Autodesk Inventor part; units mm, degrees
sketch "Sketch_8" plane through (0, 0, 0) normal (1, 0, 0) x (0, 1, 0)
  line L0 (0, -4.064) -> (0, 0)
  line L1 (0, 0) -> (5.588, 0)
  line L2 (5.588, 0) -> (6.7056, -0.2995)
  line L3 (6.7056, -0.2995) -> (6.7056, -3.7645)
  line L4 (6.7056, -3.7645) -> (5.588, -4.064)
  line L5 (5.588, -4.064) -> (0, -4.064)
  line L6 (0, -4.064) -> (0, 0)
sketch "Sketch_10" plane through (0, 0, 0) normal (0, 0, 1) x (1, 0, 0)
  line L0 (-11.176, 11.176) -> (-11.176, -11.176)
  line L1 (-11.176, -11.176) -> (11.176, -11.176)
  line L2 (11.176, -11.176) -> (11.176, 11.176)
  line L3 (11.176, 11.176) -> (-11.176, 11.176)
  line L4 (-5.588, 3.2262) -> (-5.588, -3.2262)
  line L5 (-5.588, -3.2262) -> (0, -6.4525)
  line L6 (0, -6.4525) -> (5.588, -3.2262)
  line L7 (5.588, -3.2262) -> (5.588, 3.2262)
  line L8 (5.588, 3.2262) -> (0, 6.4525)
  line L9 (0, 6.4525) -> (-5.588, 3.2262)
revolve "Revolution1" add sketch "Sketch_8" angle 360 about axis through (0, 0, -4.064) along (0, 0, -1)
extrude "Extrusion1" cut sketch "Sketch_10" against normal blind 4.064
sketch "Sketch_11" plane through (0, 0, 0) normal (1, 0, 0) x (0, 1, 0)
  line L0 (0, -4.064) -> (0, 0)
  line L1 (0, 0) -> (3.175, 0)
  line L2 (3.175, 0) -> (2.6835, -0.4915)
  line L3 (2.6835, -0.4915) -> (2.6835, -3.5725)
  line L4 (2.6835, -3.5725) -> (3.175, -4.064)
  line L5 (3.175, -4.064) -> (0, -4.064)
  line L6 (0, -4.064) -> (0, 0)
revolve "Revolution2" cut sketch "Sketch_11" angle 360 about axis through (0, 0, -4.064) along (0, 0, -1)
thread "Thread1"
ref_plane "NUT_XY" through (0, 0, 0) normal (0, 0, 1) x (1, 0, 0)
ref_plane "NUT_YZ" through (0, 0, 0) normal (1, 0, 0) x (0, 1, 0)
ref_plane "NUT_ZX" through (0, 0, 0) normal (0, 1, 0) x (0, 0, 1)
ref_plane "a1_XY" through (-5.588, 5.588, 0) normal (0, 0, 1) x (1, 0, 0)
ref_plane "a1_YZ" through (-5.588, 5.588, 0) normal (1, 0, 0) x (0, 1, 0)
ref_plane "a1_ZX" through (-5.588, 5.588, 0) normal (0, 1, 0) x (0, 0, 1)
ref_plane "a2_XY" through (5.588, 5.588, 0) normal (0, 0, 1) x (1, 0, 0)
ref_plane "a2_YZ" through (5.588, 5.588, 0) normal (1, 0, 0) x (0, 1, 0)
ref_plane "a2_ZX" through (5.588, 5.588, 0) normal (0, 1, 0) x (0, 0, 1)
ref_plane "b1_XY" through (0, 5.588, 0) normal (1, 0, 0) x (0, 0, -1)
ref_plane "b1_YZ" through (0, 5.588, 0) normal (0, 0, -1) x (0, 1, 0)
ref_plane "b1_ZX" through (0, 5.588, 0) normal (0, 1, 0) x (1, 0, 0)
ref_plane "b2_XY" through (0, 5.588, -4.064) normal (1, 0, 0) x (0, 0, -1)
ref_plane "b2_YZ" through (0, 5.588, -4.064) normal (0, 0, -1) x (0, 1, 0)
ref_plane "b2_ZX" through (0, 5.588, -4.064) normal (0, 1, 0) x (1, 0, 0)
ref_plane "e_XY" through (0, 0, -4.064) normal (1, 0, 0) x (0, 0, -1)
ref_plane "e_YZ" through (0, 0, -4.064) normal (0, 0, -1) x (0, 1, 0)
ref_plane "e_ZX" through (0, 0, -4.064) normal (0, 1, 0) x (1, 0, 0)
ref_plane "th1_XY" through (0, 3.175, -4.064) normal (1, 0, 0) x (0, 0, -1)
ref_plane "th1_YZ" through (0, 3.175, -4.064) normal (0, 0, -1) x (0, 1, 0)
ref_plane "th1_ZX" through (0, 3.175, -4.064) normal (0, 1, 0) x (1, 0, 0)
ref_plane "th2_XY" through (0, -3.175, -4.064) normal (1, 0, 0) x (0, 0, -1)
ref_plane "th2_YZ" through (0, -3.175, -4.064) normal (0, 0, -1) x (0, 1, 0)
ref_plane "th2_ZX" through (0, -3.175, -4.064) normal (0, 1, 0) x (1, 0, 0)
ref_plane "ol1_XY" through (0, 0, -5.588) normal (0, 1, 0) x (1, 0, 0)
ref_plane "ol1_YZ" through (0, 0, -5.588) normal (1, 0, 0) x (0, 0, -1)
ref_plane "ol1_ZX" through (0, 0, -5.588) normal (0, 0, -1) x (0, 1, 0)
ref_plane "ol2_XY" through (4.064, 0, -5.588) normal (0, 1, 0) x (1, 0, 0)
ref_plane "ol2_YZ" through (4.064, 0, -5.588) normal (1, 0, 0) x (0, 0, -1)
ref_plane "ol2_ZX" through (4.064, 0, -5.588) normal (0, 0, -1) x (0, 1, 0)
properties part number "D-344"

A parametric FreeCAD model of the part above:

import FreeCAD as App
import Part
import Sketcher

V = App.Vector
Q = App.Units.Quantity


def add_polygon(sketch, points):
    """Adds a closed chain of lines whose ends are joined by coincident constraints."""
    first, n = sketch.GeometryCount, len(points)
    for a, b in zip(points, points[1:] + points[:1]):
        sketch.addGeometry(Part.LineSegment(App.Vector(*a, 0), App.Vector(*b, 0)), False)
    for i in range(n):
        sketch.addConstraint(Sketcher.Constraint("Coincident", first + i, 2, first + (i + 1) % n, 1))

doc = App.newDocument("Part")
params = doc.addObject("Spreadsheet::Sheet", "Params")
for row, (alias, value) in enumerate([
    ("sketch1_width", "0.22 in"),
    ("sketch1_height", "0.16 in"),
    ("revolution_angle", "360 deg"),
    ("sketch2_width", "0.88 in"),
    ("pocket1_length", "0.16 in"),
    ("sketch3_height", "0.16 in"),
    ("sketch3_width", "0.125 in"),
    ("groove_angle", "360 deg"),
], start=1):
    params.set(f"A{row}", alias)
    params.set(f"B{row}", "=" + value)
    params.setAlias(f"B{row}", alias)

body = doc.addObject("PartDesign::Body", "Body")

# Sketch on YZ plane
sketch1 = body.newObject("Sketcher::SketchObject", "Sketch")
sketch1.AttachmentSupport = (doc.getObject("YZ_Plane"), [""])
sketch1.MapMode = "FlatFace"
add_polygon(sketch1, [(0, 0), (0, -4.064), (5.588, -4.064), (6.7056, -3.7645), (6.7056, -0.2995), (5.588, 0)])  # lines 0-5
sketch1.addConstraint([
    Sketcher.Constraint("Vertical", 0),
    Sketcher.Constraint("Horizontal", 1),
    Sketcher.Constraint("Vertical", 3),
    Sketcher.Constraint("Horizontal", 5),
    Sketcher.Constraint("Coincident", 5, 2, -1, 1),
    Sketcher.Constraint("Vertical", 1, 2, 4, 2),
    Sketcher.Constraint("Equal", 2, 4),
    Sketcher.Constraint("DistanceX", 1, 1, 1, 2, Q("0.22 in")),
    Sketcher.Constraint("DistanceY", 0, 2, 0, 1, Q("0.16 in")),
    Sketcher.Constraint("DistanceX", -1, 1, 2, 2, Q("0.264 in")),
    Sketcher.Constraint("DistanceY", 3, 1, 3, 2, Q("3.465 mm")),
])
sketch1.setExpression("Constraints[13]", "Params.sketch1_width")
sketch1.setExpression("Constraints[14]", "Params.sketch1_height")
revolution = body.newObject("PartDesign::Revolution", "Revolution")
revolution.Profile = sketch1
revolution.ReferenceAxis = (sketch1, ["V_Axis"])
revolution.setExpression("Angle", "Params.revolution_angle")

# Sketch on XY plane
sketch2 = body.newObject("Sketcher::SketchObject", "Sketch001")
sketch2.AttachmentSupport = (doc.getObject("XY_Plane"), [""])
sketch2.MapMode = "FlatFace"
add_polygon(sketch2, [(11.176, 11.176), (-11.176, 11.176), (-11.176, -11.176), (11.176, -11.176)])  # lines 0-3
add_polygon(sketch2, [(-5.588, -3.2262), (-5.588, 3.2262), (0, 6.4525), (5.588, 3.2262), (5.588, -3.2262), (0, -6.4525)])  # lines 4-9
sketch2.addConstraint([
    Sketcher.Constraint("Horizontal", 0),
    Sketcher.Constraint("Vertical", 1),
    Sketcher.Constraint("Horizontal", 2),
    Sketcher.Constraint("Vertical", 3),
    Sketcher.Constraint("Vertical", 4),
    Sketcher.Constraint("Vertical", 7),
    Sketcher.Constraint("Symmetric", 0, 2, 2, 2, -1, 1),
    Sketcher.Constraint("Symmetric", 4, 2, 7, 2, -1, 1),
    Sketcher.Constraint("Symmetric", 5, 2, 8, 2, -1, 1),
    Sketcher.Constraint("PointOnObject", 5, 2, -2),
    Sketcher.Constraint("Parallel", 6, 9),
    Sketcher.Constraint("Horizontal", 4, 2, 6, 2),
    Sketcher.Constraint("Equal", 2, 1),
    Sketcher.Constraint("Angle", 5, Q("30.0005 deg")),
    Sketcher.Constraint("DistanceX", 0, 2, 0, 1, Q("0.88 in")),
    Sketcher.Constraint("DistanceX", 4, 2, -1, 1, Q("0.22 in")),
    Sketcher.Constraint("DistanceY", 4, 1, 4, 2, Q("6.4524 mm")),
])
sketch2.setExpression("Constraints[24]", "Params.sketch2_width")
pocket1 = body.newObject("PartDesign::Pocket", "Pocket")
pocket1.Profile = sketch2
pocket1.setExpression("Length", "Params.pocket1_length")

# Sketch on YZ plane
sketch3 = body.newObject("Sketcher::SketchObject", "Sketch002")
sketch3.AttachmentSupport = (doc.getObject("YZ_Plane"), [""])
sketch3.MapMode = "FlatFace"
add_polygon(sketch3, [(0, 0), (0, -4.064), (3.175, -4.064), (2.6835, -3.5725), (2.6835, -0.4915), (3.175, 0)])  # lines 0-5
sketch3.addConstraint([
    Sketcher.Constraint("Vertical", 0),
    Sketcher.Constraint("Horizontal", 1),
    Sketcher.Constraint("Vertical", 3),
    Sketcher.Constraint("Horizontal", 5),
    Sketcher.Constraint("Coincident", 5, 2, -1, 1),
    Sketcher.Constraint("Perpendicular", 2, 4),
    Sketcher.Constraint("Vertical", 1, 2, 4, 2),
    Sketcher.Constraint("Equal", 2, 4),
    Sketcher.Constraint("DistanceY", 0, 2, 0, 1, Q("0.16 in")),
    Sketcher.Constraint("DistanceX", 1, 1, 1, 2, Q("0.125 in")),
    Sketcher.Constraint("DistanceY", 3, 1, 3, 2, Q("0.1213 in")),
])
sketch3.setExpression("Constraints[14]", "Params.sketch3_height")
sketch3.setExpression("Constraints[15]", "Params.sketch3_width")
groove = body.newObject("PartDesign::Groove", "Groove")
groove.Profile = sketch3
groove.ReferenceAxis = (sketch3, ["V_Axis"])
groove.setExpression("Angle", "Params.groove_angle")

doc.recompute()
